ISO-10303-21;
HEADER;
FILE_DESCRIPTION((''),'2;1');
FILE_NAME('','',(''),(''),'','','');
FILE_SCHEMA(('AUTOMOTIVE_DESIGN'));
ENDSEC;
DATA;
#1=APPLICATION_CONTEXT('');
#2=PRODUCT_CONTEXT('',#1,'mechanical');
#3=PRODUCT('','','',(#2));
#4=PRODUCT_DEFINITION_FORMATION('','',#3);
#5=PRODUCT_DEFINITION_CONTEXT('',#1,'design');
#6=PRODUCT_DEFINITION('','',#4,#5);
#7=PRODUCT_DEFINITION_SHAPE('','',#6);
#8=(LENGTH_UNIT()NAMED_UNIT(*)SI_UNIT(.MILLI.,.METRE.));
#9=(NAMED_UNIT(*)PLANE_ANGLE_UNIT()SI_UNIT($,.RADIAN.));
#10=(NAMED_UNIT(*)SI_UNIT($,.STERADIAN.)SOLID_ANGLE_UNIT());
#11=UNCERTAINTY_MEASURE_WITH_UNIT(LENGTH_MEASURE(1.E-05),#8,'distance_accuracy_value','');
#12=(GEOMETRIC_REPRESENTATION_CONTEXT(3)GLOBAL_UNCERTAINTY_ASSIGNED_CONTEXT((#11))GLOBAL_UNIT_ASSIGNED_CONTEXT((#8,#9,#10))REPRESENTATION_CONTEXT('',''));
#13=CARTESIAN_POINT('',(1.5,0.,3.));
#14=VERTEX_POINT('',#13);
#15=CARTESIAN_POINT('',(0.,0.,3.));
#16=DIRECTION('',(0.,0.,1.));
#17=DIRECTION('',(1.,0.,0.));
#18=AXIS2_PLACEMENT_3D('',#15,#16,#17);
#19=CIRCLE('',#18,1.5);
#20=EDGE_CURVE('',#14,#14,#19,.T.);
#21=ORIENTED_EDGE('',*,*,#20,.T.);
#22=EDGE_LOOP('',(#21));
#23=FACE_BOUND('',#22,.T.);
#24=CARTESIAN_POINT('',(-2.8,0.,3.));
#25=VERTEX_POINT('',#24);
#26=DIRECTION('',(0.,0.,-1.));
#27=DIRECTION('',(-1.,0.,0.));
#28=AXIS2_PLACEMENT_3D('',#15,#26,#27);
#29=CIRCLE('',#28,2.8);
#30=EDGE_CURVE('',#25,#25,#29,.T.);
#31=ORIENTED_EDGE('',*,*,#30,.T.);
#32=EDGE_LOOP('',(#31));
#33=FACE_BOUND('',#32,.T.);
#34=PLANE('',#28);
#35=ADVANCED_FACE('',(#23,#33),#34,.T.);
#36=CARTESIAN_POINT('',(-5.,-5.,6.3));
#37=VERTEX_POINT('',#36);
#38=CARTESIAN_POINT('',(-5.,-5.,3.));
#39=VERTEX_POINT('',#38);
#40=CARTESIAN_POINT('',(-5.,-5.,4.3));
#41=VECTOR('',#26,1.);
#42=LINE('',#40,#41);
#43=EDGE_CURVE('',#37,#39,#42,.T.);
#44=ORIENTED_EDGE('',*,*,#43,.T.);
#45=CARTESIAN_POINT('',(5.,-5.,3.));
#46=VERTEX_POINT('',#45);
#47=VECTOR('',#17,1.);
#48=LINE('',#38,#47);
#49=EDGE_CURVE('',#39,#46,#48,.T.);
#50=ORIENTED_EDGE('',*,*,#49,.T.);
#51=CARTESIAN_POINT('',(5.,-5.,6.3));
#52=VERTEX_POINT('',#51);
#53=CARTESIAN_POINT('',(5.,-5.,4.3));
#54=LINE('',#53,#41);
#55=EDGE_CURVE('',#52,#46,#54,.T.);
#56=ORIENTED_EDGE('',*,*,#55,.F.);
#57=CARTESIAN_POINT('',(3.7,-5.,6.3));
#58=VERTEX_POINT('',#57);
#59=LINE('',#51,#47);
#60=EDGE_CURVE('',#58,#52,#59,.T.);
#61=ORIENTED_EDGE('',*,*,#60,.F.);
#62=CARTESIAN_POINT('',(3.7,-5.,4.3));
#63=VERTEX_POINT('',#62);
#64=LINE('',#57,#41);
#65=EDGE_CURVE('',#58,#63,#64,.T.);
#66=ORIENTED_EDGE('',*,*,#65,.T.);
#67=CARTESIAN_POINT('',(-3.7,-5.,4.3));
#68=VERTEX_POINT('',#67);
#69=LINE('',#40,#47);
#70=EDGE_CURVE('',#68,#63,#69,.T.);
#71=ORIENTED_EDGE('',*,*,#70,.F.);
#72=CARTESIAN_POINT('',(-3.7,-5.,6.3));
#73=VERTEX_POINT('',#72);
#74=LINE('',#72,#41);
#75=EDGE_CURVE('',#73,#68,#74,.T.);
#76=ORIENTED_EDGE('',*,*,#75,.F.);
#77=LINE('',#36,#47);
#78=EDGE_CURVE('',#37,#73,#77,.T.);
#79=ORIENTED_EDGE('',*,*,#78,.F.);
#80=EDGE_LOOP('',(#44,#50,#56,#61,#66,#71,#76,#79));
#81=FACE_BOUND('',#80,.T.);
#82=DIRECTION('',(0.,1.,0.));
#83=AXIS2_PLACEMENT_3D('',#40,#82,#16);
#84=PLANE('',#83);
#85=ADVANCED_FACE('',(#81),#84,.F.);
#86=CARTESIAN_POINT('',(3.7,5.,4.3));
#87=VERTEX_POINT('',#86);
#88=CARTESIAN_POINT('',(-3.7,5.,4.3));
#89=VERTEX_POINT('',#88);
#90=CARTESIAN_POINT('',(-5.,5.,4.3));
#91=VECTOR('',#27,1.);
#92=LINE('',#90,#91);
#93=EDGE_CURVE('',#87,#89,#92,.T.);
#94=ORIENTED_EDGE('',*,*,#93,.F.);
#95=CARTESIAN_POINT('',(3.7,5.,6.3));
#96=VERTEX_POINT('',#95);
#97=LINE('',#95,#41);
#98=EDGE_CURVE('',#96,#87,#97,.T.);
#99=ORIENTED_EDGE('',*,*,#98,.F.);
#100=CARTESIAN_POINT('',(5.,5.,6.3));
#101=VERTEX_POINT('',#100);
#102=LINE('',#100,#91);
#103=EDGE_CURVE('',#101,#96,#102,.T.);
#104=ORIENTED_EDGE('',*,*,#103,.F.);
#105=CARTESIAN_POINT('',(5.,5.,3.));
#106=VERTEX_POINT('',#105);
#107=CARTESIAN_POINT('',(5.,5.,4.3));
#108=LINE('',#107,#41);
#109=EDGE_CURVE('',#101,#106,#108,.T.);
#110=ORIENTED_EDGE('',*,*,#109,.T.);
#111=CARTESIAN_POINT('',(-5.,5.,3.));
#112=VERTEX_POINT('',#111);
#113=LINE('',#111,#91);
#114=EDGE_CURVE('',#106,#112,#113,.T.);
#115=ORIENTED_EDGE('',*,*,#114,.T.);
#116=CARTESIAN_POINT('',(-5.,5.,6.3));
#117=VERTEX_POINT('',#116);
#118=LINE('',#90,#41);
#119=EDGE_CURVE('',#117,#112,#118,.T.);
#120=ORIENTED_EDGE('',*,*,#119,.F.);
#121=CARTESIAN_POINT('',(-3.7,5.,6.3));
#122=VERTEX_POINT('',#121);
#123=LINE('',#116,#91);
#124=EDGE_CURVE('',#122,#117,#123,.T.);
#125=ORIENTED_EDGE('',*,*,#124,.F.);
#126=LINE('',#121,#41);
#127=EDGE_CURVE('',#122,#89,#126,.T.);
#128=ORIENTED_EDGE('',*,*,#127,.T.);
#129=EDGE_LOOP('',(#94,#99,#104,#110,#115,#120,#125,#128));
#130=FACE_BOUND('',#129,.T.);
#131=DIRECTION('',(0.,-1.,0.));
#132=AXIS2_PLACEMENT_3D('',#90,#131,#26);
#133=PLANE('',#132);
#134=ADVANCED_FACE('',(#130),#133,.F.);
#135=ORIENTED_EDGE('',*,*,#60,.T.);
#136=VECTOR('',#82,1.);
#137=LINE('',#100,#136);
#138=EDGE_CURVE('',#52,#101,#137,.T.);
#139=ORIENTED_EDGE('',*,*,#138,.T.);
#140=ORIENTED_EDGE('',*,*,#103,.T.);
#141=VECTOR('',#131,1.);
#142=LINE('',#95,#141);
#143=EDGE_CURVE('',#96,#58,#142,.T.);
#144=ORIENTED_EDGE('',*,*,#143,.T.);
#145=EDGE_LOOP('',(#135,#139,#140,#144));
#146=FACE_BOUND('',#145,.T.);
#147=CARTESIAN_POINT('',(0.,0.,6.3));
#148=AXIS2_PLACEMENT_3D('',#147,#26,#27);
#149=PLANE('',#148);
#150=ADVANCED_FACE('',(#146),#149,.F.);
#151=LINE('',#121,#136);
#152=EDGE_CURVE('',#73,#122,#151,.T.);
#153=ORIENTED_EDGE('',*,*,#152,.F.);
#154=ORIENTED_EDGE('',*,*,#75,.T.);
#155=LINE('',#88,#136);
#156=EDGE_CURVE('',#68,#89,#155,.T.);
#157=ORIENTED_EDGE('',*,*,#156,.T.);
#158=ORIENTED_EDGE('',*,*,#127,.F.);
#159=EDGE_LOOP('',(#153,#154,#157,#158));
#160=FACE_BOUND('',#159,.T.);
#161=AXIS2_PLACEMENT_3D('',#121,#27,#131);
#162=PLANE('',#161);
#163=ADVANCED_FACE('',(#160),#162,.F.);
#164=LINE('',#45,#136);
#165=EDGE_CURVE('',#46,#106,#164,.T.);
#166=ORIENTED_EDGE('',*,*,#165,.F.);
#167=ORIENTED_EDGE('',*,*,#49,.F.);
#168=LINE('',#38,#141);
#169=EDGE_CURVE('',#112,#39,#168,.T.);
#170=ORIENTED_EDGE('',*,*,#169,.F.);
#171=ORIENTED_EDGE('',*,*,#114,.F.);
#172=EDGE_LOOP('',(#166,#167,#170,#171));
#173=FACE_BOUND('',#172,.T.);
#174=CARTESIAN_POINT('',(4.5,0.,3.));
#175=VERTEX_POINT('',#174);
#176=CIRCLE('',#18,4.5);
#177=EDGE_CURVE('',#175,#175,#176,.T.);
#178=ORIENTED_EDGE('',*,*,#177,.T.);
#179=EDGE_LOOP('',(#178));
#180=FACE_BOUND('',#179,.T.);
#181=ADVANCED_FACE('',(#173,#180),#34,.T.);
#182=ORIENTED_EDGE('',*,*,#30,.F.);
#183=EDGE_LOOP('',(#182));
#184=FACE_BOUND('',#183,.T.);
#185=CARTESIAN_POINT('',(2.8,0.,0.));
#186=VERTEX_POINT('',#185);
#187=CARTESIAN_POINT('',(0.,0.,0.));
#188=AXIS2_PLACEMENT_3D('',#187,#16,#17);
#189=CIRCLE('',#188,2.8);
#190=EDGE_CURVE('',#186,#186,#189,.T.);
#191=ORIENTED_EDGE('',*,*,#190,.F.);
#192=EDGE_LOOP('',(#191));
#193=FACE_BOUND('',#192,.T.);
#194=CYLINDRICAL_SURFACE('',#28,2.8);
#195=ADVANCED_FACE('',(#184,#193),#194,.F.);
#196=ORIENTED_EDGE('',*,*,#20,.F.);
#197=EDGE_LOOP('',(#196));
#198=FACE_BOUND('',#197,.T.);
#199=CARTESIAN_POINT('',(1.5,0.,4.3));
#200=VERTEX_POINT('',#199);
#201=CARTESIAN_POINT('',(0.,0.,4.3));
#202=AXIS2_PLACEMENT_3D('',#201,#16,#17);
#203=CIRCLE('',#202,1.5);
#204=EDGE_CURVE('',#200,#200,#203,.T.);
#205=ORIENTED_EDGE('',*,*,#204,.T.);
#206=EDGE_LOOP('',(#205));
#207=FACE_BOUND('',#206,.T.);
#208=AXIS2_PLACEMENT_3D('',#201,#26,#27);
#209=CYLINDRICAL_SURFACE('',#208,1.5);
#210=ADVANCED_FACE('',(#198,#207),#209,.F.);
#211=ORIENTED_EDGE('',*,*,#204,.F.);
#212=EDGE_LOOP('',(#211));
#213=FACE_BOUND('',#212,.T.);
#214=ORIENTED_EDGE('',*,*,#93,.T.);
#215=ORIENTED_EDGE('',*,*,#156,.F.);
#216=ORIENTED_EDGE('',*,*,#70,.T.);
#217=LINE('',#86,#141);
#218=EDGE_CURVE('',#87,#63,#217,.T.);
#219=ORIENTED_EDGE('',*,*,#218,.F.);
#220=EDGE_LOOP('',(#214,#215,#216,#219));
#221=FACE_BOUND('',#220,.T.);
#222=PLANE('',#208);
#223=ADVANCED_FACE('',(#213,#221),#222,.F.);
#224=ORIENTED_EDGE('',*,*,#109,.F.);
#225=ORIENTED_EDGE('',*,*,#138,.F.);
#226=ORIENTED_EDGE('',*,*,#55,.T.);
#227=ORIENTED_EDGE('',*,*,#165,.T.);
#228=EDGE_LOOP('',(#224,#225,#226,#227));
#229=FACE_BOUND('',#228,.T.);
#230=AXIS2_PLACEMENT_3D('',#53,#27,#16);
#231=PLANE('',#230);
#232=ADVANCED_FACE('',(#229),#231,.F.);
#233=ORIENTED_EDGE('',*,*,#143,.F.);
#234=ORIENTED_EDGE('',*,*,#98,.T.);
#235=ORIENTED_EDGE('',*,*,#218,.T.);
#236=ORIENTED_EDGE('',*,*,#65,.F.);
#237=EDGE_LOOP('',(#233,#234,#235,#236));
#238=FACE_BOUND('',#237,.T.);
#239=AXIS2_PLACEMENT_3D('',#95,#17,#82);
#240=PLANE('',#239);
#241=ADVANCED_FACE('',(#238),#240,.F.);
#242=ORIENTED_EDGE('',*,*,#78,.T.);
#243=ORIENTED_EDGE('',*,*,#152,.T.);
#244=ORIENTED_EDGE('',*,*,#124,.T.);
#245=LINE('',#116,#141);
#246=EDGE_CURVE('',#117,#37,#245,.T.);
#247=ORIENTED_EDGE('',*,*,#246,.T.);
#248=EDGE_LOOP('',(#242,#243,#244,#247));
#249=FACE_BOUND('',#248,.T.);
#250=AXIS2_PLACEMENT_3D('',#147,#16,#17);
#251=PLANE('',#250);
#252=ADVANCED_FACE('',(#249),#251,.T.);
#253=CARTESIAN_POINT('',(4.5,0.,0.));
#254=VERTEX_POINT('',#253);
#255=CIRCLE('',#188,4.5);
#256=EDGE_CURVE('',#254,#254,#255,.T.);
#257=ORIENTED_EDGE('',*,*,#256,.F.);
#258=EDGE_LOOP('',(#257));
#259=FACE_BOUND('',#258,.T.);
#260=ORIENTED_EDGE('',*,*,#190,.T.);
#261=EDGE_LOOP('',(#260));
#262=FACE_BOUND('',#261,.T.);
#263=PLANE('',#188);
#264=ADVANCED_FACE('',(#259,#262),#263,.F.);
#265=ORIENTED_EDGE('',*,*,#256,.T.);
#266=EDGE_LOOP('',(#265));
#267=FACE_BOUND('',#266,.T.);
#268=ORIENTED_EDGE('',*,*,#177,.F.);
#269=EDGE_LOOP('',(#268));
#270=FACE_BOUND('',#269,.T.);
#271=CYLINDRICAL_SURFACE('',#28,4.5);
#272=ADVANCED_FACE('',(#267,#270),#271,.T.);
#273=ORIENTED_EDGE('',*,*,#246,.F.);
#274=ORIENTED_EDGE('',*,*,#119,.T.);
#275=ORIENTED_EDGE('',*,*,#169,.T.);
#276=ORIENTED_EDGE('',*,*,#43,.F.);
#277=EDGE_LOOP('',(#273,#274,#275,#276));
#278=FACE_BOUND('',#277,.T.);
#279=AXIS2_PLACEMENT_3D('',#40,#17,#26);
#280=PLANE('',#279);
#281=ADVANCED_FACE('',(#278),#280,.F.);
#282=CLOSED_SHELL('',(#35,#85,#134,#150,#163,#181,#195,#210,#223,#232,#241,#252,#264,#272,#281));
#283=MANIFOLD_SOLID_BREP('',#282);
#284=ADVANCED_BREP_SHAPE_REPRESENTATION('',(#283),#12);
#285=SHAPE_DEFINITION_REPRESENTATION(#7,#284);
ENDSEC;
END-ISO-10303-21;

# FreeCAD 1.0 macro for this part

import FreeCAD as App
import Part
import Sketcher
from FreeCAD import Vector
Q = App.Units.Quantity


def add_polygon(sketch, points):
    """Adds a closed chain of lines whose ends are joined by coincident constraints."""
    first, n = sketch.GeometryCount, len(points)
    for a, b in zip(points, points[1:] + points[:1]):
        sketch.addGeometry(Part.LineSegment(App.Vector(*a, 0), App.Vector(*b, 0)), False)
    for i in range(n):
        sketch.addConstraint(Sketcher.Constraint("Coincident", first + i, 2, first + (i + 1) % n, 1))

doc = App.newDocument("Part")
params = doc.addObject("Spreadsheet::Sheet", "Params")
for row, (alias, value) in enumerate([
    ("sketch1_diameter", "9 mm"),
    ("sketch1_diameter2", "5.6 mm"),
    ("pad1_length", "3 mm"),
    ("sketch2_diameter", "3 mm"),
    ("sketch2_width", "10 mm"),
    ("pad2_length", "1.3 mm"),
    ("sketch3_height", "10 mm"),
    ("sketch3_width", "1.3 mm"),
    ("pad3_length", "2 mm"),
], start=1):
    params.set(f"A{row}", alias)
    params.set(f"B{row}", "=" + value)
    params.setAlias(f"B{row}", alias)

body = doc.addObject("PartDesign::Body", "Body")

sketch1 = body.newObject("Sketcher::SketchObject", "Sketch")
sketch1.AttachmentSupport = (doc.getObject("XY_Plane"), [""])
sketch1.MapMode = "FlatFace"
sketch1.addGeometry([
    Part.Circle(Vector(0, 0, 0), Vector(0, 0, 1), 4.5),
    Part.Circle(Vector(0, 0, 0), Vector(0, 0, 1), 2.8),
], False)
sketch1.addConstraint([
    Sketcher.Constraint("Coincident", 0, 3, -1, 1),
    Sketcher.Constraint("Coincident", 1, 3, -1, 1),
    Sketcher.Constraint("Diameter", 0, Q("9 mm")),
    Sketcher.Constraint("Diameter", 1, Q("5.6 mm")),
])
sketch1.setExpression("Constraints[2]", "Params.sketch1_diameter")
sketch1.setExpression("Constraints[3]", "Params.sketch1_diameter2")
pad1 = body.newObject("PartDesign::Pad", "Pad")
pad1.Profile = sketch1
pad1.setExpression("Length", "Params.pad1_length")

sketch2 = body.newObject("Sketcher::SketchObject", "Sketch001")
sketch2.AttachmentSupport = (doc.getObject("XY_Plane"), [""])
sketch2.MapMode = "FlatFace"
sketch2.AttachmentOffset = App.Placement(Vector(0, 0, 3), App.Rotation())
add_polygon(sketch2, [(-5, 5), (-5, -5), (5, -5), (5, 5)])
sketch2.addGeometry(Part.Circle(Vector(0, 0, 0), Vector(0, 0, 1), 1.5), False)
sketch2.addConstraint([
    Sketcher.Constraint("Vertical", 0),
    Sketcher.Constraint("Horizontal", 1),
    Sketcher.Constraint("Vertical", 2),
    Sketcher.Constraint("Horizontal", 3),
    Sketcher.Constraint("Coincident", 4, 3, -1, 1),
    Sketcher.Constraint("Symmetric", 0, 2, 2, 2, -1, 1),
    Sketcher.Constraint("Equal", 3, 0),
    Sketcher.Constraint("Diameter", 4, Q("3 mm")),
    Sketcher.Constraint("DistanceX", 1, 1, 1, 2, Q("10 mm")),
])
sketch2.setExpression("Constraints[11]", "Params.sketch2_diameter")
sketch2.setExpression("Constraints[12]", "Params.sketch2_width")
pad2 = body.newObject("PartDesign::Pad", "Pad001")
pad2.Profile = sketch2
pad2.setExpression("Length", "Params.pad2_length")

sketch3 = body.newObject("Sketcher::SketchObject", "Sketch002")
sketch3.AttachmentSupport = (doc.getObject("XY_Plane"), [""])
sketch3.MapMode = "FlatFace"
sketch3.AttachmentOffset = App.Placement(Vector(0, 0, 4.3), App.Rotation())
add_polygon(sketch3, [(-5, 5), (-5, -5), (-3.7, -5), (-3.7, 5)])
add_polygon(sketch3, [(3.7, 5), (3.7, -5), (5, -5), (5, 5)])
sketch3.addConstraint([
    Sketcher.Constraint("Vertical", 0),
    Sketcher.Constraint("Horizontal", 1),
    Sketcher.Constraint("Vertical", 2),
    Sketcher.Constraint("Horizontal", 3),
    Sketcher.Constraint("Vertical", 4),
    Sketcher.Constraint("Horizontal", 5),
    Sketcher.Constraint("Vertical", 6),
    Sketcher.Constraint("Horizontal", 7),
    Sketcher.Constraint("Symmetric", 2, 2, 4, 2, -1, 1),
    Sketcher.Constraint("Symmetric", 0, 2, 6, 2, -1, 1),
    Sketcher.Constraint("Horizontal", 1, 2, 4, 2),
    Sketcher.Constraint("DistanceY", 0, 2, 0, 1, Q("10 mm")),
    Sketcher.Constraint("DistanceX", 1, 1, 1, 2, Q("1.3 mm")),
    Sketcher.Constraint("DistanceX", 0, 2, -1, 1, Q("5 mm")),
])
sketch3.setExpression("Constraints[19]", "Params.sketch3_height")
sketch3.setExpression("Constraints[20]", "Params.sketch3_width")
pad3 = body.newObject("PartDesign::Pad", "Pad002")
pad3.Profile = sketch3
pad3.setExpression("Length", "Params.pad3_length")

doc.recompute()
